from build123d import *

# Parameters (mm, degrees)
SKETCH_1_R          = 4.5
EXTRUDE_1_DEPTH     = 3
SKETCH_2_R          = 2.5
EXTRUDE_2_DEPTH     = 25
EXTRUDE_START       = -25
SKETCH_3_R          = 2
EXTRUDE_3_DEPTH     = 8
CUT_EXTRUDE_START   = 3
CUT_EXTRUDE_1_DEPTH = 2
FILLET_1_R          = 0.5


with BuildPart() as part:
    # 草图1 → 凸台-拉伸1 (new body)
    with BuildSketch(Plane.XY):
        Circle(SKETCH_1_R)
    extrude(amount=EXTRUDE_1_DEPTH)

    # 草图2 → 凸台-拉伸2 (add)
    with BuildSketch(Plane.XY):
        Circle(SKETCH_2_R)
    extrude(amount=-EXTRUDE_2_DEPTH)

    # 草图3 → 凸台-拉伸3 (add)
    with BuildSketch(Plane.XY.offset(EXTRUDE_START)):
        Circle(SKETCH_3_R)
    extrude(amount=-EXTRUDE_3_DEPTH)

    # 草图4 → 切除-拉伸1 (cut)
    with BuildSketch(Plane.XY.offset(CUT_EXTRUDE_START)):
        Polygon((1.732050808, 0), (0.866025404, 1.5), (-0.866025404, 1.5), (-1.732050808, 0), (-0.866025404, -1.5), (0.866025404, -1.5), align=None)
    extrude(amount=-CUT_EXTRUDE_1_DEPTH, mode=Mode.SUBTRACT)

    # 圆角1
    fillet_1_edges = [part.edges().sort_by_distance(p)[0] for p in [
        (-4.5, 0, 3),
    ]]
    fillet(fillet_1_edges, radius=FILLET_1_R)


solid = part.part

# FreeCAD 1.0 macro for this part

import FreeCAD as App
import Part
import Sketcher
from FreeCAD import Vector
Q = App.Units.Quantity


def edges_at(feature, points):
    """Names of the edges that pass closest to the given points."""
    edges = feature.Shape.Edges
    near = lambda p: min(range(len(edges)), key=lambda i: edges[i].distToShape(Part.Vertex(*p))[0])
    return sorted({f"Edge{near(p) + 1}" for p in points})

doc = App.newDocument("Part")
body = doc.addObject("PartDesign::Body", "Body")

sketch1 = body.newObject("Sketcher::SketchObject", "Sketch")
sketch1.AttachmentSupport = (doc.getObject("XY_Plane"), [""])
sketch1.MapMode = "FlatFace"
sketch1.addGeometry(Part.Circle(Vector(0, 0, 0), Vector(0, 0, 1), 4.5), False)
sketch1.addConstraint([
    Sketcher.Constraint("Coincident", 0, 3, -1, 1),
    Sketcher.Constraint("Diameter", 0, 9.0),
])
pad1 = body.newObject("PartDesign::Pad", "Pad")
pad1.Profile = sketch1
pad1.Length = 3

sketch2 = body.newObject("Sketcher::SketchObject", "Sketch001")
sketch2.AttachmentSupport = (doc.getObject("XY_Plane"), [""])
sketch2.MapMode = "FlatFace"
sketch2.addGeometry(Part.Circle(Vector(0, 0, 0), Vector(0, 0, 1), 2.5), False)
sketch2.addConstraint([
    Sketcher.Constraint("Coincident", 0, 3, -1, 1),
    Sketcher.Constraint("Diameter", 0, 5.0),
])
pad2 = body.newObject("PartDesign::Pad", "Pad001")
pad2.Profile = sketch2
pad2.Length = 25
pad2.Reversed = True

sketch3 = body.newObject("Sketcher::SketchObject", "Sketch002")
sketch3.AttachmentSupport = (doc.getObject("XY_Plane"), [""])
sketch3.MapMode = "FlatFace"
sketch3.AttachmentOffset = App.Placement(Vector(0, 0, -25), App.Rotation())
sketch3.addGeometry(Part.Circle(Vector(0, 0, 0), Vector(0, 0, 1), 2), False)
sketch3.addConstraint([
    Sketcher.Constraint("Coincident", 0, 3, -1, 1),
    Sketcher.Constraint("Diameter", 0, 4.0),
])
pad3 = body.newObject("PartDesign::Pad", "Pad002")
pad3.Profile = sketch3
pad3.Length = 8
pad3.Reversed = True

sketch4 = body.newObject("Sketcher::SketchObject", "Sketch003")
sketch4.AttachmentSupport = (doc.getObject("XY_Plane"), [""])
sketch4.MapMode = "FlatFace"
sketch4.AttachmentOffset = App.Placement(Vector(0, 0, 3), App.Rotation())
sketch4.addGeometry([
    Part.LineSegment(Vector(1.7, 0, 0), Vector(0.9, 1.5, 0)),
    Part.LineSegment(Vector(0.9, 1.5, 0), Vector(-0.9, 1.5, 0)),
    Part.LineSegment(Vector(-0.9, 1.5, 0), Vector(-1.7, 0, 0)),
    Part.LineSegment(Vector(-1.7, 0, 0), Vector(-0.9, -1.5, 0)),
    Part.LineSegment(Vector(-0.9, -1.5, 0), Vector(0.9, -1.5, 0)),
    Part.LineSegment(Vector(0.9, -1.5, 0), Vector(1.7, 0, 0)),
], False)
sketch4.addConstraint([
    Sketcher.Constraint("Coincident", 0, 2, 1, 1),
    Sketcher.Constraint("Coincident", 1, 2, 2, 1),
    Sketcher.Constraint("Coincident", 2, 2, 3, 1),
    Sketcher.Constraint("Coincident", 3, 2, 4, 1),
    Sketcher.Constraint("Coincident", 4, 2, 5, 1),
    Sketcher.Constraint("Coincident", 5, 2, 0, 1),
    Sketcher.Constraint("Horizontal", 1),
    Sketcher.Constraint("Horizontal", 4),
    Sketcher.Constraint("Symmetric", 0, 2, 3, 2, -1, 1),
    Sketcher.Constraint("Symmetric", 2, 2, 5, 2, -1, 1),
    Sketcher.Constraint("PointOnObject", 2, 2, -1),
    Sketcher.Constraint("Parallel", 2, 5),
    Sketcher.Constraint("Vertical", 1, 2, 3, 2),
    Sketcher.Constraint("Angle", 0, Q("120 deg")),
    Sketcher.Constraint("DistanceY", 3, 2, 1, 2, 3.0),
    Sketcher.Constraint("DistanceX", 1, 2, 1, 1, 1.732051),
])
pocket1 = body.newObject("PartDesign::Pocket", "Pocket")
pocket1.Profile = sketch4
pocket1.Length = 2
doc.recompute()

fillet = body.newObject("PartDesign::Fillet", "Fillet")
fillet.Base = (pocket1, edges_at(pocket1, [(-4.5, 0, 3)]))
fillet.Radius = 0.5

doc.recompute()
